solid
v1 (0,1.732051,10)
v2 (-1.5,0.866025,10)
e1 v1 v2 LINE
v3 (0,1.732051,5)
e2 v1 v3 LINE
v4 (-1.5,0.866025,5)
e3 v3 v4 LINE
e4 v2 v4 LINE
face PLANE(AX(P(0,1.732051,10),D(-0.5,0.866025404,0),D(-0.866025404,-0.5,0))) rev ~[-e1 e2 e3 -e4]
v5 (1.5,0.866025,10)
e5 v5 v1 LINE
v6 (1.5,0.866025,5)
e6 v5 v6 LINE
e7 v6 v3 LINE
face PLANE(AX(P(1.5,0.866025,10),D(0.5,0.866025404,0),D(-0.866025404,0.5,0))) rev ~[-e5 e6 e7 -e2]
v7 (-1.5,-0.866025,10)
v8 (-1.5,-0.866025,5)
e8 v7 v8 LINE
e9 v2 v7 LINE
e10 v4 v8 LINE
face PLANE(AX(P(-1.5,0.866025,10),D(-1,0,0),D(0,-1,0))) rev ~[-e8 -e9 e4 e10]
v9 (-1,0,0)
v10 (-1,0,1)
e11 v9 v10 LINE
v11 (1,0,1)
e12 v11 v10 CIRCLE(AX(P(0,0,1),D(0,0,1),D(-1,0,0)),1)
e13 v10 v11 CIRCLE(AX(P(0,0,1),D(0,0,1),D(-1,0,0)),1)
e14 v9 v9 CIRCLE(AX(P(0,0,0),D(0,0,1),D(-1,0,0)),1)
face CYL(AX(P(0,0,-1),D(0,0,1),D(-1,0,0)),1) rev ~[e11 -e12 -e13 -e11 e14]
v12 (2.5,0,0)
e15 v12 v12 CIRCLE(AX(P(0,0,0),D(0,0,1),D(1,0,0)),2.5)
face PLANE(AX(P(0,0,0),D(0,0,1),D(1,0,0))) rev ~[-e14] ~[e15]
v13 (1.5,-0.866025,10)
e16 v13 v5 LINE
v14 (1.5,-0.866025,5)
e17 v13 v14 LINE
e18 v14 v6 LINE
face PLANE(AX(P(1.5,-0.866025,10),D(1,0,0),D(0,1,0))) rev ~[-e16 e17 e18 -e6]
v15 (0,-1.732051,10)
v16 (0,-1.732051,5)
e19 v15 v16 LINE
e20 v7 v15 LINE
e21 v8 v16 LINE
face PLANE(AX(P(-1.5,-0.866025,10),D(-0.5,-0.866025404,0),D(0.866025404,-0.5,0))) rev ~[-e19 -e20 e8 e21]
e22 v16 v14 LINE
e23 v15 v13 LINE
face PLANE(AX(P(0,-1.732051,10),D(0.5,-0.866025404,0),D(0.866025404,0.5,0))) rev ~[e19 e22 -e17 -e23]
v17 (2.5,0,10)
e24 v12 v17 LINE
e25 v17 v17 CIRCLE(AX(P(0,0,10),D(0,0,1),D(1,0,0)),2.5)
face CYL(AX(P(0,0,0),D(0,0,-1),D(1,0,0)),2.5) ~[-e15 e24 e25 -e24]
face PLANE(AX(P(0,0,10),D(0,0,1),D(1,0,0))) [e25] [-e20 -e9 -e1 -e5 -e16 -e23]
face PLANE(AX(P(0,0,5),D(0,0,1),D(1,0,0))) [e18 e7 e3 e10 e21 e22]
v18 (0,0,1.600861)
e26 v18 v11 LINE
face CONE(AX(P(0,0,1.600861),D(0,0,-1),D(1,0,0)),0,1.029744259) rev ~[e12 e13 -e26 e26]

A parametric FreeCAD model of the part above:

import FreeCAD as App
import Part
import Sketcher
Q = App.Units.Quantity

doc = App.newDocument("Part")
body = doc.addObject("PartDesign::Body", "Body")

sketch1 = body.newObject("Sketcher::SketchObject", "Sketch")
sketch1.AttachmentSupport = (doc.getObject("XY_Plane"), [""])
sketch1.MapMode = "FlatFace"
sketch1.addGeometry(Part.Circle(App.Vector(0, 0, 0), App.Vector(0, 0, 1), 2.5), False)
sketch1.addConstraint([
    Sketcher.Constraint("Coincident", 0, 3, -1, 1),
    Sketcher.Constraint("Diameter", 0, Q("5 mm")),
])
pad1 = body.newObject("PartDesign::Pad", "Pad")
pad1.Profile = sketch1
pad1.Length = 10

sketch2 = body.newObject("Sketcher::SketchObject", "Sketch001")
sketch2.AttachmentSupport = (doc.getObject("XY_Plane"), [""])
sketch2.MapMode = "FlatFace"
sketch2.AttachmentOffset = App.Placement(App.Vector(0, 0, 10), App.Rotation())
sketch2.addGeometry([
    Part.LineSegment(App.Vector(1.5, -0.866025, 0), App.Vector(1.5, 0.866025, 0)),
    Part.LineSegment(App.Vector(1.5, 0.866025, 0), App.Vector(0, 1.732051, 0)),
    Part.LineSegment(App.Vector(0, 1.732051, 0), App.Vector(-1.5, 0.866025, 0)),
    Part.LineSegment(App.Vector(-1.5, 0.866025, 0), App.Vector(-1.5, -0.866025, 0)),
    Part.LineSegment(App.Vector(-1.5, -0.866025, 0), App.Vector(0, -1.732051, 0)),
    Part.LineSegment(App.Vector(0, -1.732051, 0), App.Vector(1.5, -0.866025, 0)),
], False)
sketch2.addConstraint([
    Sketcher.Constraint("Coincident", 0, 2, 1, 1),
    Sketcher.Constraint("Coincident", 1, 2, 2, 1),
    Sketcher.Constraint("Coincident", 2, 2, 3, 1),
    Sketcher.Constraint("Coincident", 3, 2, 4, 1),
    Sketcher.Constraint("Coincident", 4, 2, 5, 1),
    Sketcher.Constraint("Coincident", 5, 2, 0, 1),
    Sketcher.Constraint("Vertical", 0),
    Sketcher.Constraint("Vertical", 3),
    Sketcher.Constraint("Symmetric", 0, 2, 3, 2, -1, 1),
    Sketcher.Constraint("Symmetric", 1, 2, 4, 2, -1, 1),
    Sketcher.Constraint("PointOnObject", 1, 2, -2),
    Sketcher.Constraint("Parallel", 2, 5),
    Sketcher.Constraint("Horizontal", 0, 2, 2, 2),
    Sketcher.Constraint("Angle", 1, Q("150 deg")),
    Sketcher.Constraint("DistanceX", 2, 2, 0, 2, Q("3 mm")),
    Sketcher.Constraint("DistanceY", 0, 1, 0, 2, Q("1.732051 mm")),
])
pocket1 = body.newObject("PartDesign::Pocket", "Pocket")
pocket1.Profile = sketch2
pocket1.Length = 5

sketch3 = body.newObject("Sketcher::SketchObject", "Sketch002")
sketch3.AttachmentSupport = (doc.getObject("XY_Plane"), [""])
sketch3.MapMode = "FlatFace"
sketch3.addGeometry(Part.Circle(App.Vector(0, 0, 0), App.Vector(0, 0, 1), 1), False)
sketch3.addConstraint([
    Sketcher.Constraint("Coincident", 0, 3, -1, 1),
    Sketcher.Constraint("Diameter", 0, Q("2 mm")),
])
doc.recompute()
hole = body.newObject("PartDesign::Hole", "Hole")
hole.Profile = sketch3
hole.ThreadType = "None"
hole.Diameter = 2
hole.DepthType = "Dimension"
hole.Depth = 1
hole.DrillPoint = "Angled"
hole.DrillPointAngle = 118
hole.Reversed = True

doc.recompute()
